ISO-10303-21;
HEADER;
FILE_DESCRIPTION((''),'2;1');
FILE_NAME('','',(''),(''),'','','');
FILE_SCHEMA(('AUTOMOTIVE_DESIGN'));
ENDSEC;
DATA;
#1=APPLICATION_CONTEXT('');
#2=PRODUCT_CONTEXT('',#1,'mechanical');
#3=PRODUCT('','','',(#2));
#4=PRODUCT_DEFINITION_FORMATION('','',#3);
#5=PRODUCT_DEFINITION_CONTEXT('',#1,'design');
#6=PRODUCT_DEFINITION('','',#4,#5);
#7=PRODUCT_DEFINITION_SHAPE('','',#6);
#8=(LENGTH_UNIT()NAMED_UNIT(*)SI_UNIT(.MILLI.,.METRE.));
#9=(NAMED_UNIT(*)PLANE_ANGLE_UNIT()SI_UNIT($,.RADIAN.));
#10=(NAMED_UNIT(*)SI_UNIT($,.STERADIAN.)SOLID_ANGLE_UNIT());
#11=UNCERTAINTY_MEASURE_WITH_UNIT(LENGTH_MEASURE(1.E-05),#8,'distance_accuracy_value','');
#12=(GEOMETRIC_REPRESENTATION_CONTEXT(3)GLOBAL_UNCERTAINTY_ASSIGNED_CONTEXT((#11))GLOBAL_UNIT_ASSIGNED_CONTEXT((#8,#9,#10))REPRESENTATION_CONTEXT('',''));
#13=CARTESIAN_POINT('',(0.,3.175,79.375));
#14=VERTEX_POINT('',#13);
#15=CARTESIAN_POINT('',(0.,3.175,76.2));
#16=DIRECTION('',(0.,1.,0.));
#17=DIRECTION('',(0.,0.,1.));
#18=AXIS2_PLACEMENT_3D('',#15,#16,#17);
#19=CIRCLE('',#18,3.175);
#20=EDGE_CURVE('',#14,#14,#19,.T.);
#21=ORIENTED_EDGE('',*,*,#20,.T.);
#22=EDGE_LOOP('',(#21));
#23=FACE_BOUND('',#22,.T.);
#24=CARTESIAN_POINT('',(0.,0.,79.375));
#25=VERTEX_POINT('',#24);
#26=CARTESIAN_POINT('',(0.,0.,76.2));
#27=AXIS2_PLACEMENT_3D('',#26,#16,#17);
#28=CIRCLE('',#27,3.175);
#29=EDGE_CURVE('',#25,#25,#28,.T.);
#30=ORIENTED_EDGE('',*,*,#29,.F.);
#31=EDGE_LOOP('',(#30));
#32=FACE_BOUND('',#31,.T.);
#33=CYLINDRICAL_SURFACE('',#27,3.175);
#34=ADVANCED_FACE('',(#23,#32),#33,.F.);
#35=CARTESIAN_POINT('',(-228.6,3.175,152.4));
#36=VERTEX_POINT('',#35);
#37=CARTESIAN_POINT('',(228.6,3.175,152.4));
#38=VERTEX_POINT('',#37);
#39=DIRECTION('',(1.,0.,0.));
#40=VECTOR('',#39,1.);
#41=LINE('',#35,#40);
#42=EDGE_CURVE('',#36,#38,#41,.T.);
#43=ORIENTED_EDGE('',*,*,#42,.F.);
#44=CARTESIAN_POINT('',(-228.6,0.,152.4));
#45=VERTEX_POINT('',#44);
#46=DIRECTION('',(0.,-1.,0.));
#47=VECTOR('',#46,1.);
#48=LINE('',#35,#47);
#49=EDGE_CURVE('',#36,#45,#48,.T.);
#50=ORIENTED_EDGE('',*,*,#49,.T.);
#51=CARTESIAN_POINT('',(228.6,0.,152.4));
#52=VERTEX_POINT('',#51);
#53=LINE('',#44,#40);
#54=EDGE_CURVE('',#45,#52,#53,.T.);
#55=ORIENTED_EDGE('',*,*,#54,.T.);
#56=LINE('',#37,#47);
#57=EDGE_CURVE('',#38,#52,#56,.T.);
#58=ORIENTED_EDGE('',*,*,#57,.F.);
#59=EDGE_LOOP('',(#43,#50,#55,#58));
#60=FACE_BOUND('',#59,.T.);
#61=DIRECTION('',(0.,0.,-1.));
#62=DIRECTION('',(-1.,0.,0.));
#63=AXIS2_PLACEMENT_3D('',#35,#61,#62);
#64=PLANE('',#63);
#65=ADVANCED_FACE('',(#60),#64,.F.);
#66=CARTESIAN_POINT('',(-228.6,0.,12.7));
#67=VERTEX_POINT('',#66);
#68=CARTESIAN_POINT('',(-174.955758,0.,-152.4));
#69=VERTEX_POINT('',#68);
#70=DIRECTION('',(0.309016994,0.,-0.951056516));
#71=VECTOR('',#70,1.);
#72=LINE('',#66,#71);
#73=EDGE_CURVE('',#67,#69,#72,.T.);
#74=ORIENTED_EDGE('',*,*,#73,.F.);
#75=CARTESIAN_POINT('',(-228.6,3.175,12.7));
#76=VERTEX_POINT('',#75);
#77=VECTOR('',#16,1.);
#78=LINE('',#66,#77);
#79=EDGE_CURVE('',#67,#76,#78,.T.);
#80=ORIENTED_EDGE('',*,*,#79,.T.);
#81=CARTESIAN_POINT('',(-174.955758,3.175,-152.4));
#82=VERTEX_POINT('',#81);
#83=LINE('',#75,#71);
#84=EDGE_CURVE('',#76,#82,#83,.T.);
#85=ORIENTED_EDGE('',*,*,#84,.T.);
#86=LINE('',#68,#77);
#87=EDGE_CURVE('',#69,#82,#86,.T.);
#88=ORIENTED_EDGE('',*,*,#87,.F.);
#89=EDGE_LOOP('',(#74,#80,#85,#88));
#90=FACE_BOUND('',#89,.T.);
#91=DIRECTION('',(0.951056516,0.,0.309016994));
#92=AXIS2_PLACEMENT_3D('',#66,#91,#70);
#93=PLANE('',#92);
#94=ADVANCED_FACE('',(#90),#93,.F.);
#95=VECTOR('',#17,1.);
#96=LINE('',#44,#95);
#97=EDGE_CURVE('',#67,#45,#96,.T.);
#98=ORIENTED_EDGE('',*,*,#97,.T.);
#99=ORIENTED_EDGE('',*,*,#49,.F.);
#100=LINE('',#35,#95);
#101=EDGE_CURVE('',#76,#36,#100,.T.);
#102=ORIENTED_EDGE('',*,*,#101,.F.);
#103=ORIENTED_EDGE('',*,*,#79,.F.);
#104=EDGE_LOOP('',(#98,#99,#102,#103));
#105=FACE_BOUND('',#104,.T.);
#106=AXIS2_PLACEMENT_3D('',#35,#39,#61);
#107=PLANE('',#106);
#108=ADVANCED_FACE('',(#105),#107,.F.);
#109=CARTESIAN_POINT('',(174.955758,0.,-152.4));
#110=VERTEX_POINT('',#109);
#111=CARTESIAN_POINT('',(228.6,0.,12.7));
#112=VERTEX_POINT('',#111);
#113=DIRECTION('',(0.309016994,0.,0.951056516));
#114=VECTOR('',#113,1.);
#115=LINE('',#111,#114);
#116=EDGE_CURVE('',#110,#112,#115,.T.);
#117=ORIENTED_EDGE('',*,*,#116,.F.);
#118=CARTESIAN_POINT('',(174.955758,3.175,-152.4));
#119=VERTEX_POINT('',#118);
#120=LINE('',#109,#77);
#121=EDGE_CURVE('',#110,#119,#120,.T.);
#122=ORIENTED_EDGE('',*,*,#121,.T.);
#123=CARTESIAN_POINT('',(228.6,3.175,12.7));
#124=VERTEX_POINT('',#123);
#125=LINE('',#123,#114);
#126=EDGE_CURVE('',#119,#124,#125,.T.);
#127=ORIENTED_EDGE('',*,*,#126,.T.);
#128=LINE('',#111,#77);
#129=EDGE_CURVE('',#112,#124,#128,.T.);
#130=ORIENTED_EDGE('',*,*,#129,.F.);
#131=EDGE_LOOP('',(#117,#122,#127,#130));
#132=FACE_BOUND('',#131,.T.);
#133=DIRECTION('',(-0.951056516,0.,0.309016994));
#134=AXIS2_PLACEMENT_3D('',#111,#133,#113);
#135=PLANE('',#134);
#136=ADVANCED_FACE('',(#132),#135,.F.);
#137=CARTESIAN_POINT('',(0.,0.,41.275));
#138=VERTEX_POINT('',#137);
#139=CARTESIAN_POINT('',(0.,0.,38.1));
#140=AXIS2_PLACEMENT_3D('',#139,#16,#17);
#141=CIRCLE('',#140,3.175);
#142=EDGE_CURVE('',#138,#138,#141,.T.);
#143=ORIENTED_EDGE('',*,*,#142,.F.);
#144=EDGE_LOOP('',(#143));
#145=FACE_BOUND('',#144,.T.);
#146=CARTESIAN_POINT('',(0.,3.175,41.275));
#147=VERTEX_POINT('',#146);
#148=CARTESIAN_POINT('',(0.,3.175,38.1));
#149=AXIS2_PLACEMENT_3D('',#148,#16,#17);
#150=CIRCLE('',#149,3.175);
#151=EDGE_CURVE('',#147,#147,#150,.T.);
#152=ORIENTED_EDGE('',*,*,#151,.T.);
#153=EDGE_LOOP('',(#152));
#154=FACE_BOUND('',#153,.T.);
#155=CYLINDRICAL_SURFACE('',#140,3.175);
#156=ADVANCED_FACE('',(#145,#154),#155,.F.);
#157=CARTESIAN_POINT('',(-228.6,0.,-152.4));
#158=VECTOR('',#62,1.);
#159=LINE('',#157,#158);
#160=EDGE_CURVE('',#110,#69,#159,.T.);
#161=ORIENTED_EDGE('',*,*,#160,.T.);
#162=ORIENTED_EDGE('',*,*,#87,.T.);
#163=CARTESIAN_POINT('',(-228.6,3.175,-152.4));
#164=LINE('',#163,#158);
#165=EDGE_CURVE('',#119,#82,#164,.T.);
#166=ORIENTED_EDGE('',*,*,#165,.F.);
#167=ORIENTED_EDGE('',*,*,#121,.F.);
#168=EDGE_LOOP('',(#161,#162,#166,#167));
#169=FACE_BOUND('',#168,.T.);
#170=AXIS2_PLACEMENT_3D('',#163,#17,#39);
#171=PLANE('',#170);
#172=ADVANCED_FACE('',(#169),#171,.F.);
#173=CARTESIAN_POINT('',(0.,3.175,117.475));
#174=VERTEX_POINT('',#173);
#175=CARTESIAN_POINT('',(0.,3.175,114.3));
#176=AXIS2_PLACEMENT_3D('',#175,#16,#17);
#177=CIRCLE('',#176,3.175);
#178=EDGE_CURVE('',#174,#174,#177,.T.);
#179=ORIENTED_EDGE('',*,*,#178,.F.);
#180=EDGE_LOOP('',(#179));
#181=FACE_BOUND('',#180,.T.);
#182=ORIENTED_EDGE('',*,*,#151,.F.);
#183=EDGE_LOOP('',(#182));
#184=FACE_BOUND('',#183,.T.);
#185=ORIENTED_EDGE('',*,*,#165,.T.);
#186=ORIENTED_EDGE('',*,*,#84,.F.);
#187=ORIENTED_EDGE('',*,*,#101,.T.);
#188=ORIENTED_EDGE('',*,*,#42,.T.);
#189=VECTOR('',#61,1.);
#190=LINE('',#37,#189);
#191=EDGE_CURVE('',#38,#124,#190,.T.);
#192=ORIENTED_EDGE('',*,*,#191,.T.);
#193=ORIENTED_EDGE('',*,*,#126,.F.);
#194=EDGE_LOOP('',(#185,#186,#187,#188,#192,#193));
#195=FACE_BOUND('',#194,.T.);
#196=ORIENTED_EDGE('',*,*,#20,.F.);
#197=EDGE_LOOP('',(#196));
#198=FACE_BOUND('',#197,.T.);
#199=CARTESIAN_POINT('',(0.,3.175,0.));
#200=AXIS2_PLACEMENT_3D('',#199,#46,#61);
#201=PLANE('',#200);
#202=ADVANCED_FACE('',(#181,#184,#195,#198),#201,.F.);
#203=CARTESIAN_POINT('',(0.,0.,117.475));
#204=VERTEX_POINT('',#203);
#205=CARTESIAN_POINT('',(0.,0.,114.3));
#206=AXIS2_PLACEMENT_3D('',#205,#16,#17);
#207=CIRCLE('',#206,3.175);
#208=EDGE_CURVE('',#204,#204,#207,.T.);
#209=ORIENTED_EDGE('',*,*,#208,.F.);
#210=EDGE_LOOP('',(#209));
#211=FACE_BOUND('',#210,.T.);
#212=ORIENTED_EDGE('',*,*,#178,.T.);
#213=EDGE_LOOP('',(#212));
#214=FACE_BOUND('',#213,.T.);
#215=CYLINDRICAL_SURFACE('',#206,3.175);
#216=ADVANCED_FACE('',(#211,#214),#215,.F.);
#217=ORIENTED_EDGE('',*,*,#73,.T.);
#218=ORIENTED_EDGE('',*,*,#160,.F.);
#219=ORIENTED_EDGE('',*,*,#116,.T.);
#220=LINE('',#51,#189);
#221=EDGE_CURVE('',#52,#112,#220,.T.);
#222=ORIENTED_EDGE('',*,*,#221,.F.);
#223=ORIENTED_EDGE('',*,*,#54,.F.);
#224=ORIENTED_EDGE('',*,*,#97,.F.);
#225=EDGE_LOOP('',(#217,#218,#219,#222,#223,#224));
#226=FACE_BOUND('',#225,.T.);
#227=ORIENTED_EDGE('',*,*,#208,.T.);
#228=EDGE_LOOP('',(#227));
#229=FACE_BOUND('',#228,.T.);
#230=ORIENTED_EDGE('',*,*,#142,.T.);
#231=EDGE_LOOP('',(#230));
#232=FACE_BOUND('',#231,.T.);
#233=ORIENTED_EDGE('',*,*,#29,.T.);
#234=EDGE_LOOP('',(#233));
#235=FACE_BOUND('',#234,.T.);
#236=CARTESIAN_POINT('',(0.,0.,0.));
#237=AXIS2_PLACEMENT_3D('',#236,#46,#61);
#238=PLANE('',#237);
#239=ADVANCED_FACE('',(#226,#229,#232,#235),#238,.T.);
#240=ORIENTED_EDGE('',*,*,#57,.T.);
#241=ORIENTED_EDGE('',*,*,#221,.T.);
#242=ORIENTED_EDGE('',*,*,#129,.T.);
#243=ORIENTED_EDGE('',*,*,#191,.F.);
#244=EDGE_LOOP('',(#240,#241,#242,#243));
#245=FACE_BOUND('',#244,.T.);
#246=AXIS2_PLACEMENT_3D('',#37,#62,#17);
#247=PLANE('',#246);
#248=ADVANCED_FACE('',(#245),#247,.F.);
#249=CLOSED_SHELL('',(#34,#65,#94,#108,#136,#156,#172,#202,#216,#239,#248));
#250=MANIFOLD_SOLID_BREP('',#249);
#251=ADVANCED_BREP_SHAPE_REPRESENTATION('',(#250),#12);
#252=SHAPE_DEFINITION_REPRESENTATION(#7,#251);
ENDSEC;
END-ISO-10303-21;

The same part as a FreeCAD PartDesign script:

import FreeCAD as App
import Part
import Sketcher

V = App.Vector
Q = App.Units.Quantity

doc = App.newDocument("Part")
body = doc.addObject("PartDesign::Body", "Body")

sketch1 = doc.addObject("Sketcher::SketchObject", "Sketch")
body.addObject(sketch1)
sketch1.AttachmentSupport = (doc.XZ_Plane, [""])
sketch1.MapMode = "FlatFace"
sketch1.addGeometry([
    Part.LineSegment(V(-229, -152, 0), V(-229, 152, 0)),
    Part.LineSegment(V(-229, 152, 0), V(229, 152, 0)),
    Part.LineSegment(V(229, 152, 0), V(229, -152, 0)),
    Part.LineSegment(V(229, -152, 0), V(-229, -152, 0)),
], False)
sketch1.addConstraint([
    Sketcher.Constraint("Coincident", 0, 2, 1, 1),
    Sketcher.Constraint("Coincident", 1, 2, 2, 1),
    Sketcher.Constraint("Coincident", 2, 2, 3, 1),
    Sketcher.Constraint("Coincident", 3, 2, 0, 1),
    Sketcher.Constraint("Vertical", 0),
    Sketcher.Constraint("Horizontal", 1),
    Sketcher.Constraint("Vertical", 2),
    Sketcher.Constraint("Horizontal", 3),
    Sketcher.Constraint("Symmetric", 0, 2, 2, 2, -1, 1),
    Sketcher.Constraint("DistanceX", 1, 1, 1, 2, Q("18 in")),
    Sketcher.Constraint("DistanceY", 0, 1, 0, 2, Q("12 in")),
])
pad1 = doc.addObject("PartDesign::Pad", "Pad")
body.addObject(pad1)
pad1.Profile = sketch1
pad1.Length = Q("0.125 in")
pad1.Reversed = True

sketch2 = doc.addObject("Sketcher::SketchObject", "Sketch001")
body.addObject(sketch2)
sketch2.AttachmentSupport = (doc.XZ_Plane, [""])
sketch2.MapMode = "FlatFace"
sketch2.AttachmentOffset = App.Placement(V(0, 0, -0.125 * 25.4), App.Rotation())
sketch2.addGeometry([
    Part.LineSegment(V(-229, 13, 0), V(-175, -152, 0)),
    Part.LineSegment(V(-175, -152, 0), V(-229, -152, 0)),
    Part.LineSegment(V(-229, -152, 0), V(-229, 13, 0)),
    Part.LineSegment(V(229, -152, 0), V(175, -152, 0)),
    Part.LineSegment(V(175, -152, 0), V(229, 13, 0)),
    Part.LineSegment(V(229, 13, 0), V(229, -152, 0)),
], False)
sketch2.addConstraint([
    Sketcher.Constraint("Coincident", 0, 2, 1, 1),
    Sketcher.Constraint("Coincident", 1, 2, 2, 1),
    Sketcher.Constraint("Coincident", 2, 2, 0, 1),
    Sketcher.Constraint("Coincident", 3, 2, 4, 1),
    Sketcher.Constraint("Coincident", 4, 2, 5, 1),
    Sketcher.Constraint("Coincident", 5, 2, 3, 1),
    Sketcher.Constraint("Horizontal", 1),
    Sketcher.Constraint("Vertical", 2),
    Sketcher.Constraint("Horizontal", 3),
    Sketcher.Constraint("Vertical", 5),
    Sketcher.Constraint("Symmetric", 0, 2, 3, 2, -2),
    Sketcher.Constraint("Symmetric", 2, 2, 4, 2, -2),
    Sketcher.Constraint("DistanceY", 2, 1, 2, 2, Q("6.5 in")),
    Sketcher.Constraint("DistanceY", 0, 2, -1, 1, Q("6 in")),
    Sketcher.Constraint("DistanceX", 1, 2, -1, 1, Q("9 in")),
    Sketcher.Constraint("Angle", 0, Q("-72 deg")),
])
pocket1 = doc.addObject("PartDesign::Pocket", "Pocket")
body.addObject(pocket1)
pocket1.Profile = sketch2
pocket1.Length = Q("0.125 in")
pocket1.Reversed = True

sketch3 = doc.addObject("Sketcher::SketchObject", "Sketch002")
body.addObject(sketch3)
sketch3.AttachmentSupport = (doc.XZ_Plane, [""])
sketch3.MapMode = "FlatFace"
sketch3.AttachmentOffset = App.Placement(V(0, 0, -0.125 * 25.4), App.Rotation())
sketch3.addGeometry([
    Part.Circle(V(0, 114.3, 0), V(0, 0, 1), 3.2),
    Part.Circle(V(0, 76.2, 0), V(0, 0, 1), 3.2),
    Part.Circle(V(0, 38.1, 0), V(0, 0, 1), 3.2),
], False)
sketch3.addConstraint([
    Sketcher.Constraint("Equal", 0, 1),
    Sketcher.Constraint("Equal", 1, 2),
    Sketcher.Constraint("PointOnObject", 0, 3, -2),
    Sketcher.Constraint("PointOnObject", 1, 3, -2),
    Sketcher.Constraint("PointOnObject", 2, 3, -2),
    Sketcher.Constraint("Diameter", 0, Q("0.25 in")),
    Sketcher.Constraint("DistanceY", -1, 1, 1, 3, Q("3 in")),
    Sketcher.Constraint("DistanceY", 2, 3, 0, 3, Q("3 in")),
    Sketcher.Constraint("DistanceY", -1, 1, 0, 3, Q("4.5 in")),
])
pocket2 = doc.addObject("PartDesign::Pocket", "Pocket001")
body.addObject(pocket2)
pocket2.Profile = sketch3
pocket2.Length = Q("0.125 in")
pocket2.Reversed = True

doc.recompute()
